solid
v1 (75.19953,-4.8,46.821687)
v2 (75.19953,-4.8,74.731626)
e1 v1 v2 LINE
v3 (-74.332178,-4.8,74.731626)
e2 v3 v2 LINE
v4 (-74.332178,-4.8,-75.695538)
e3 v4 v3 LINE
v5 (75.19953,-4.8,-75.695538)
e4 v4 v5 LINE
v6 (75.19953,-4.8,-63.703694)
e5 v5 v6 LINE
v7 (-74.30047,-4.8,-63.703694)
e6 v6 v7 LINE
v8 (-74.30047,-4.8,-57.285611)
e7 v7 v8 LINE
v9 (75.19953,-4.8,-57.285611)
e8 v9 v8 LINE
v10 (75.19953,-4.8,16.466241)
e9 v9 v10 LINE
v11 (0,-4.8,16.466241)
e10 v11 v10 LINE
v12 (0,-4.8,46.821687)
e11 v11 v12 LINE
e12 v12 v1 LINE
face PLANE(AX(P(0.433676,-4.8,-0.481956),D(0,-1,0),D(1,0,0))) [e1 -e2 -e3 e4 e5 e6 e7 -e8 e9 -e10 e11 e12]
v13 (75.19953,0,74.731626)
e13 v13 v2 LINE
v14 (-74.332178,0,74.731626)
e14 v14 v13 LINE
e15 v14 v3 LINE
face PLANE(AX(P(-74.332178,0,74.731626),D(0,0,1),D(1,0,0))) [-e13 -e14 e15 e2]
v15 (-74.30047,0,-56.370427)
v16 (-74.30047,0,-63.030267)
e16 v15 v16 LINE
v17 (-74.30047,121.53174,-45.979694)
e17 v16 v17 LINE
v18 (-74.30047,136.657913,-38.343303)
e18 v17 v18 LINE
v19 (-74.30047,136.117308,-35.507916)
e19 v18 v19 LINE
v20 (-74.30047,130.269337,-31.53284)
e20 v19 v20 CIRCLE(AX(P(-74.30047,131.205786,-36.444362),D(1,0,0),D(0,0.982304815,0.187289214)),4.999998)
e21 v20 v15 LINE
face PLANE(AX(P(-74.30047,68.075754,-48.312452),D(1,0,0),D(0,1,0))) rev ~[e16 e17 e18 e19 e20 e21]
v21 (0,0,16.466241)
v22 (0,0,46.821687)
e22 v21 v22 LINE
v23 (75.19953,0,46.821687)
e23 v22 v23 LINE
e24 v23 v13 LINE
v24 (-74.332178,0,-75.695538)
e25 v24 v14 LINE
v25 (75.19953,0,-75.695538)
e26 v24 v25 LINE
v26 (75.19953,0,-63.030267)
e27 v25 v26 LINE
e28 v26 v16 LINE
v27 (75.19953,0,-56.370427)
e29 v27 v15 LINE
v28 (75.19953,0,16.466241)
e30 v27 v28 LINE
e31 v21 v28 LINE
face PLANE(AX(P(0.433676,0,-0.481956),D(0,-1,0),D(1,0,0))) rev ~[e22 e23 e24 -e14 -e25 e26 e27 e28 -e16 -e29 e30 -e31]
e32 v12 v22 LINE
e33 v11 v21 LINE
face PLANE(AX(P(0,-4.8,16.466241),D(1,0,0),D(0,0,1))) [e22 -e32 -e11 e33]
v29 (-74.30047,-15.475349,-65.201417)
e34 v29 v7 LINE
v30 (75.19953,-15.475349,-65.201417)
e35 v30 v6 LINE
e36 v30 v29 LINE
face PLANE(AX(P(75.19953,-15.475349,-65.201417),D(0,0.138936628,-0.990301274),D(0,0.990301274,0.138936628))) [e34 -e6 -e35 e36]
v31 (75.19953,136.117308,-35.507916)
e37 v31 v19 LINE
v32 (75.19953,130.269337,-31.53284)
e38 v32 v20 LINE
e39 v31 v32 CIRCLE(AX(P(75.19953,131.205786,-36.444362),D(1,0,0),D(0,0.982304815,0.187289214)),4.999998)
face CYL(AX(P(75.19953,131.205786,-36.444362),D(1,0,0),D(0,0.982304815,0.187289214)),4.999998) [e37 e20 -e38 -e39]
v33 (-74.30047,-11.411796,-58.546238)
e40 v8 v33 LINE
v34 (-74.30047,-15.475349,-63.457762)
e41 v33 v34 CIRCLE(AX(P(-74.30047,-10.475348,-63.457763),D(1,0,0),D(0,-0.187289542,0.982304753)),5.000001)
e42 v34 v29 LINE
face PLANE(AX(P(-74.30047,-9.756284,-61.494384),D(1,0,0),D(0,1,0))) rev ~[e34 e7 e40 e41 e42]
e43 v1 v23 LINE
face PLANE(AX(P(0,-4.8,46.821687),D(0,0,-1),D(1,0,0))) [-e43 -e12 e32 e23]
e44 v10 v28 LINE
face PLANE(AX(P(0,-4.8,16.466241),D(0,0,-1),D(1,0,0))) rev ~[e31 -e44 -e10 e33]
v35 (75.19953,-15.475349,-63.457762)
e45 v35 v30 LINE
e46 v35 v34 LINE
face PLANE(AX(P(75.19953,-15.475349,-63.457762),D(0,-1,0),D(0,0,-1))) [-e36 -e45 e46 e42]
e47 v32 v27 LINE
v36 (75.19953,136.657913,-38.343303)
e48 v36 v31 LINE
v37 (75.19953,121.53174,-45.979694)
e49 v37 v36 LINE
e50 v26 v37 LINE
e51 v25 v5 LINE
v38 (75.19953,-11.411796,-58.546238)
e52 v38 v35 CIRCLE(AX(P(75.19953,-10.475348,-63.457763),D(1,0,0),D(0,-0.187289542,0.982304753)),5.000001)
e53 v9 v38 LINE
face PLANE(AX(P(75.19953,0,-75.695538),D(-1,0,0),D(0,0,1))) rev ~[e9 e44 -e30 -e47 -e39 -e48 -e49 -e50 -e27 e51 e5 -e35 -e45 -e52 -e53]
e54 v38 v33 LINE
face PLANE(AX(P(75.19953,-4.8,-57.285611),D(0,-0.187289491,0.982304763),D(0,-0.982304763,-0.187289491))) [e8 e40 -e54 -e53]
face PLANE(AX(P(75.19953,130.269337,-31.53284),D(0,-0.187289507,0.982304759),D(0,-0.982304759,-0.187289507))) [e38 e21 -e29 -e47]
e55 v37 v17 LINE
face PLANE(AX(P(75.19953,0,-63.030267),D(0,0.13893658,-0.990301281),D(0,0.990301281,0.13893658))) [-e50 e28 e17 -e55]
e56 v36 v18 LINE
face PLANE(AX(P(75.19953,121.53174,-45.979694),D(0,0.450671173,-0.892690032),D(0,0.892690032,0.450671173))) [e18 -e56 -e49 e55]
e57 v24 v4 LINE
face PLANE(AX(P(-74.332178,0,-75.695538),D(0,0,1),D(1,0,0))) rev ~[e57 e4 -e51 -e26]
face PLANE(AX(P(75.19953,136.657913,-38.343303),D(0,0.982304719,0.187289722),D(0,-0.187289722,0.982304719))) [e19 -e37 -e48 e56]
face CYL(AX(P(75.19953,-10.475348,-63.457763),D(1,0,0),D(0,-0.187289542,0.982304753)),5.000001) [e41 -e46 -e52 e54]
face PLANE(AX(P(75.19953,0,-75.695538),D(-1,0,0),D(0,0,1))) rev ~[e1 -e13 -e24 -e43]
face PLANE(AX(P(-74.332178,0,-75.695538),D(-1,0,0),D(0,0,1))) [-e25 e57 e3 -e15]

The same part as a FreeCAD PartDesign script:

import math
import FreeCAD as App
import Part
import Sketcher

V = App.Vector

doc = App.newDocument("Part")
body = doc.addObject("PartDesign::Body", "Body")

# Sketch on XZ plane
sketch1 = body.newObject("Sketcher::SketchObject", "Sketch")
sketch1.AttachmentSupport = (doc.getObject("XZ_Plane"), [""])
sketch1.MapMode = "FlatFace"
sketch1.addGeometry([
    Part.LineSegment(V(-74.332178, 74.731626, 0), V(-74.332178, -75.695538, 0)),
    Part.LineSegment(V(-74.332178, -75.695538, 0), V(75.19953, -75.695538, 0)),
    Part.LineSegment(V(75.19953, -75.695538, 0), V(75.19953, 74.731626, 0)),
    Part.LineSegment(V(75.19953, 74.731626, 0), V(-74.332178, 74.731626, 0)),
], False)
sketch1.addConstraint([
    Sketcher.Constraint("Coincident", 0, 2, 1, 1),
    Sketcher.Constraint("Coincident", 1, 2, 2, 1),
    Sketcher.Constraint("Coincident", 2, 2, 3, 1),
    Sketcher.Constraint("Coincident", 3, 2, 0, 1),
    Sketcher.Constraint("Vertical", 0),
    Sketcher.Constraint("Horizontal", 1),
    Sketcher.Constraint("Vertical", 2),
    Sketcher.Constraint("Horizontal", 3),
    Sketcher.Constraint("DistanceX", 1, 1, 1, 2, 149.531708),
    Sketcher.Constraint("DistanceY", 0, 2, 0, 1, 150.427163),
    Sketcher.Constraint("DistanceX", 0, 2, -1, 1, 74.332178),
    Sketcher.Constraint("DistanceY", 0, 2, -1, 1, 75.695538),
])
pad1 = body.newObject("PartDesign::Pad", "Pad")
pad1.Profile = sketch1
pad1.Length = 4.8

# Sketch on XZ plane
sketch2 = body.newObject("Sketcher::SketchObject", "Sketch001")
sketch2.AttachmentSupport = (doc.getObject("XZ_Plane"), [""])
sketch2.MapMode = "FlatFace"
sketch2.AttachmentOffset = App.Placement(V(0, 0, 4.8), App.Rotation())
sketch2.addGeometry([
    Part.LineSegment(V(0, 46.821687, 0), V(0, 16.466241, 0)),
    Part.LineSegment(V(0, 16.466241, 0), V(75.19953, 16.466241, 0)),
    Part.LineSegment(V(75.19953, 16.466241, 0), V(75.19953, 46.821687, 0)),
    Part.LineSegment(V(75.19953, 46.821687, 0), V(0, 46.821687, 0)),
], False)
sketch2.addConstraint([
    Sketcher.Constraint("Coincident", 0, 2, 1, 1),
    Sketcher.Constraint("Coincident", 1, 2, 2, 1),
    Sketcher.Constraint("Coincident", 2, 2, 3, 1),
    Sketcher.Constraint("Coincident", 3, 2, 0, 1),
    Sketcher.Constraint("Vertical", 0),
    Sketcher.Constraint("Horizontal", 1),
    Sketcher.Constraint("Vertical", 2),
    Sketcher.Constraint("Horizontal", 3),
    Sketcher.Constraint("PointOnObject", 0, 2, -2),
    Sketcher.Constraint("DistanceX", 1, 1, 1, 2, 75.19953),
    Sketcher.Constraint("DistanceY", 0, 2, 0, 1, 30.355446),
    Sketcher.Constraint("DistanceY", -1, 1, 0, 2, 16.466241),
])
pocket1 = body.newObject("PartDesign::Pocket", "Pocket")
pocket1.Profile = sketch2
pocket1.Length = 33

# Sketch on YZ plane
sketch3 = body.newObject("Sketcher::SketchObject", "Sketch002")
sketch3.AttachmentSupport = (doc.getObject("YZ_Plane"), [""])
sketch3.MapMode = "FlatFace"
sketch3.AttachmentOffset = App.Placement(V(0, 0, 75.19953), App.Rotation())
sketch3.addGeometry([
    Part.LineSegment(V(0, -56.370427, 0), V(0, -63.030267, 0)),  # 0
    Part.LineSegment(V(0, -63.030267, 0), V(121.53174, -45.979694, 0)),  # 1
    Part.LineSegment(V(121.53174, -45.979694, 0), V(136.657913, -38.343303, 0)),  # 2
    Part.LineSegment(V(136.657913, -38.343303, 0), V(136.117308, -35.507916, 0)),  # 3
    Part.ArcOfCircle(Part.Circle(V(131.205786, -36.444362, 0), V(0, 0, 1), 4.999998), math.radians(10.794628), math.radians(100.794663)),  # 4
    Part.LineSegment(V(130.269337, -31.53284, 0), V(0, -56.370427, 0)),  # 5
    Part.LineSegment(V(-15.475349, -63.457762, 0), V(-15.475349, -65.201417, 0)),  # 6
    Part.LineSegment(V(-15.475349, -65.201417, 0), V(-4.8, -63.703694, 0)),  # 7
    Part.LineSegment(V(-4.8, -63.703694, 0), V(-4.8, -57.285611, 0)),  # 8
    Part.LineSegment(V(-4.8, -57.285611, 0), V(-11.411796, -58.546238, 0)),  # 9
    Part.ArcOfCircle(Part.Circle(V(-10.475348, -63.457763, 0), V(0, 0, 1), 5.000001), math.radians(100.794647), math.radians(179.999993)),  # 10
], False)
sketch3.addConstraint([
    Sketcher.Constraint("Coincident", 0, 2, 1, 1),
    Sketcher.Constraint("Coincident", 1, 2, 2, 1),
    Sketcher.Constraint("Coincident", 2, 2, 3, 1),
    Sketcher.Constraint("Tangent", 3, 2, 4, 1),
    Sketcher.Constraint("Tangent", 4, 2, 5, 1),
    Sketcher.Constraint("Coincident", 5, 2, 0, 1),
    Sketcher.Constraint("Coincident", 6, 2, 7, 1),
    Sketcher.Constraint("Coincident", 7, 2, 8, 1),
    Sketcher.Constraint("Coincident", 8, 2, 9, 1),
    Sketcher.Constraint("Tangent", 9, 2, 10, 1),
    Sketcher.Constraint("Tangent", 10, 2, 6, 1),
    Sketcher.Constraint("Vertical", 0),
    Sketcher.Constraint("Vertical", 6),
    Sketcher.Constraint("Vertical", 8),
    Sketcher.Constraint("PointOnObject", 0, 2, -2),
    Sketcher.Constraint("Perpendicular", 3, 5),
    Sketcher.Constraint("Parallel", 1, 7),
    Sketcher.Constraint("Parallel", 5, 9),
    Sketcher.Constraint("Radius", 4, 4.999998),
    Sketcher.Constraint("Radius", 10, 5.000001),
    Sketcher.Constraint("DistanceX", 7, 2, -1, 1, 4.8),
    Sketcher.Constraint("DistanceY", 7, 2, 1, 2, 17.724),
    Sketcher.Constraint("Distance", 7, 10.7799),
    Sketcher.Constraint("Distance", 9, 6.730901),
    Sketcher.Constraint("DistanceY", 0, 2, 0, 1, 6.65984),
    Sketcher.Constraint("DistanceY", 10, 3, 4, 3, 27.013401),
    Sketcher.Constraint("Distance", 5, 132.616009),
    Sketcher.Constraint("DistanceY", 6, 2, 6, 1, 1.743655),
    Sketcher.Constraint("DistanceY", 8, 1, 8, 2, 6.418083),
    Sketcher.Constraint("DistanceY", 4, 3, -1, 1, 36.444362),
    Sketcher.Constraint("DistanceY", 2, 2, 4, 3, 1.898941),
])
pad2 = body.newObject("PartDesign::Pad", "Pad001")
pad2.Profile = sketch3
pad2.Length = 149.5
pad2.Reversed = True

doc.recompute()
